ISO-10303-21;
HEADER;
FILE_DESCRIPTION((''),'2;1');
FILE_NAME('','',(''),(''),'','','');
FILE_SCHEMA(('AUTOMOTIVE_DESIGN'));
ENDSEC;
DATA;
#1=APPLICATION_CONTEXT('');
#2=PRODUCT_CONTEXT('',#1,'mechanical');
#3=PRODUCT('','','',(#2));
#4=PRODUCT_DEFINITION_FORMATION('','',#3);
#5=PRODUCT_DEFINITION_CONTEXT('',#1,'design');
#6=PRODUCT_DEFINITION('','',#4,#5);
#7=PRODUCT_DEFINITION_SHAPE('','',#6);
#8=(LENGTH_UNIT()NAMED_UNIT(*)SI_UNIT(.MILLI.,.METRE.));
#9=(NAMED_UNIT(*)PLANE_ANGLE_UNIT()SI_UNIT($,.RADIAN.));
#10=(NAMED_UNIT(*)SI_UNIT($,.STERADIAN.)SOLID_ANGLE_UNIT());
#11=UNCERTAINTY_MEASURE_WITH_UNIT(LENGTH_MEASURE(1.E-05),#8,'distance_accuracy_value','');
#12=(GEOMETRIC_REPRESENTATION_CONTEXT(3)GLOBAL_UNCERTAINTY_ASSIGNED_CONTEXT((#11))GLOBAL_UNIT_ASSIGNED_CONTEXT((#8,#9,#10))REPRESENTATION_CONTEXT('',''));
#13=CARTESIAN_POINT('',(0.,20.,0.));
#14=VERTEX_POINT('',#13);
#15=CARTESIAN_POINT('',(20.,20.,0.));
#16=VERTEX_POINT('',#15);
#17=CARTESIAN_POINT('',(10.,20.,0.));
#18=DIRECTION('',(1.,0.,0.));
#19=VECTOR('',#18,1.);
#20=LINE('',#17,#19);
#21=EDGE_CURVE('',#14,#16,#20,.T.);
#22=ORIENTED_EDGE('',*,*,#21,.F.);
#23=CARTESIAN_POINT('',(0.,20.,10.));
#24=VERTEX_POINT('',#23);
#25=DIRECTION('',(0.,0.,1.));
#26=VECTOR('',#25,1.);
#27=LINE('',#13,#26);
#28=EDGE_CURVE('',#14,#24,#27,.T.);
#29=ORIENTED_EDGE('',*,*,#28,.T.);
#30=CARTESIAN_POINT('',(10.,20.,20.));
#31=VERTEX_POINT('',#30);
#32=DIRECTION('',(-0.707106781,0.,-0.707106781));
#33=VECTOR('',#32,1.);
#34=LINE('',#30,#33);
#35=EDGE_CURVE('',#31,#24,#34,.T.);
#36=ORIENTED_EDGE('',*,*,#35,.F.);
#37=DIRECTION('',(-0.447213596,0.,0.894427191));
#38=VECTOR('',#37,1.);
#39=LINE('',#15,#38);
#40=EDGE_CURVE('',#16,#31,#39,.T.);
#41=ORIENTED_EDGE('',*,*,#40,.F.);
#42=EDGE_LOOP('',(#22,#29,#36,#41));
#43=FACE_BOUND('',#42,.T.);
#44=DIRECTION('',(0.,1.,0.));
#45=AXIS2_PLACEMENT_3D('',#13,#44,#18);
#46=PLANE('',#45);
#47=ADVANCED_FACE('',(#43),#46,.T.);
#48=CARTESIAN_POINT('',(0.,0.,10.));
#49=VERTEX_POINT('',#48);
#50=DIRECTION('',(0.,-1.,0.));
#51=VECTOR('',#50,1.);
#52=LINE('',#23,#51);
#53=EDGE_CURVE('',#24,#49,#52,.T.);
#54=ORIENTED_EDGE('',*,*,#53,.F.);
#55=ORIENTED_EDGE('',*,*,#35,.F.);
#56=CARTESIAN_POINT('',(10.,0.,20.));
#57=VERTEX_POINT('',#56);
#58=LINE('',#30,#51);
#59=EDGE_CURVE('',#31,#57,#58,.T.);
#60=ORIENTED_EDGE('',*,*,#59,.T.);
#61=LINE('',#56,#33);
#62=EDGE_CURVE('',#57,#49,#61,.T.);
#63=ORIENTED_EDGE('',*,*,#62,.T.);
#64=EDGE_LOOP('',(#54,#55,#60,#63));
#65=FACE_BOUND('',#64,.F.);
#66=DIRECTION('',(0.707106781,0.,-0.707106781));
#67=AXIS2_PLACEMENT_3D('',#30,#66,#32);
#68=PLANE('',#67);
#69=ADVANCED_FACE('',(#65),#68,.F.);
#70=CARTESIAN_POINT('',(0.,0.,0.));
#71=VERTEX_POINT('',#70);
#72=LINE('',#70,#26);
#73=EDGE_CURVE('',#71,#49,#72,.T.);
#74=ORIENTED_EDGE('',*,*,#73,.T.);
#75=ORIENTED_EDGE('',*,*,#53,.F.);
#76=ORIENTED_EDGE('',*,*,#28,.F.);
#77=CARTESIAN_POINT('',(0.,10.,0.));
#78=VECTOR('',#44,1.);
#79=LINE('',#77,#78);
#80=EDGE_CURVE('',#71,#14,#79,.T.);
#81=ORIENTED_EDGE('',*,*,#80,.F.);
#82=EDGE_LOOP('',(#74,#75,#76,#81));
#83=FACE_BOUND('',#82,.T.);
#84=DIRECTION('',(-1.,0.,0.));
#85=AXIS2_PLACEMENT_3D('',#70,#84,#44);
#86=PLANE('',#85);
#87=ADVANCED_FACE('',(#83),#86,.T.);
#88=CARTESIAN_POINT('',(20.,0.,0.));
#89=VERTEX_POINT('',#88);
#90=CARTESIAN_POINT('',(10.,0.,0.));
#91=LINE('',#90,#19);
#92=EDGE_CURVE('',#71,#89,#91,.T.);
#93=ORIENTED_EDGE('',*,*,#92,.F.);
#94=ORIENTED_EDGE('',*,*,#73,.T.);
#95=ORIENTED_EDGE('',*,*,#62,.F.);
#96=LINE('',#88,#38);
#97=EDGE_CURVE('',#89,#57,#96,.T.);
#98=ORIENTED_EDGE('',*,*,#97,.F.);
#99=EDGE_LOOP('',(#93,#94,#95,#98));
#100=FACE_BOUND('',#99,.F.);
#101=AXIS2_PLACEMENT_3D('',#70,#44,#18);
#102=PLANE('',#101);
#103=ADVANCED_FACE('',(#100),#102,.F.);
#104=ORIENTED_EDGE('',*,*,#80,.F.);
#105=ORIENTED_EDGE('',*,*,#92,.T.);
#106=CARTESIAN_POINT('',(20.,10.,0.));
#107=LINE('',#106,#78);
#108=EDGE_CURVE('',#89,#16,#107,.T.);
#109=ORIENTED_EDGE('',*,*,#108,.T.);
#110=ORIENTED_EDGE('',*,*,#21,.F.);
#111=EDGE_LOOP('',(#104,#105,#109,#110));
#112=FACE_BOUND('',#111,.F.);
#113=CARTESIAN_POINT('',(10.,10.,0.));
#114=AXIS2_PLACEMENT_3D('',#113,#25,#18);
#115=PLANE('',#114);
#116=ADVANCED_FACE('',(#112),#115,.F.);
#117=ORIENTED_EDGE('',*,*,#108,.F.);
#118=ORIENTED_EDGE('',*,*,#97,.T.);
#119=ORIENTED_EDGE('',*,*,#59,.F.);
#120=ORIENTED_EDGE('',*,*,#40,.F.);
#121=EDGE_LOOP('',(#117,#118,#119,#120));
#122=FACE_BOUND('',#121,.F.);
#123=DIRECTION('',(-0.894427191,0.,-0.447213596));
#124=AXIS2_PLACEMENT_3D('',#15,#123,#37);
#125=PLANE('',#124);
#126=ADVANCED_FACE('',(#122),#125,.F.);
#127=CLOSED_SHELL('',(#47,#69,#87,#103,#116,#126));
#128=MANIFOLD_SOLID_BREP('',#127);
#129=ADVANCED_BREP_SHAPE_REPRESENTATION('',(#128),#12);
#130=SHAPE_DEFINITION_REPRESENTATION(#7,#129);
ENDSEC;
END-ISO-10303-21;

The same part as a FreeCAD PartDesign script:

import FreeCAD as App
import Part
import Sketcher

V = App.Vector


def add_polygon(sketch, points):
    """Adds a closed chain of lines whose ends are joined by coincident constraints."""
    first, n = sketch.GeometryCount, len(points)
    for a, b in zip(points, points[1:] + points[:1]):
        sketch.addGeometry(Part.LineSegment(App.Vector(*a, 0), App.Vector(*b, 0)), False)
    for i in range(n):
        sketch.addConstraint(Sketcher.Constraint("Coincident", first + i, 2, first + (i + 1) % n, 1))

doc = App.newDocument("Part")
body = doc.addObject("PartDesign::Body", "Body")

# Sketch on XY plane
sketch1 = doc.addObject("Sketcher::SketchObject", "Sketch")
body.addObject(sketch1)
sketch1.AttachmentSupport = (doc.XY_Plane, [""])
sketch1.MapMode = "FlatFace"
add_polygon(sketch1, [(0, 20), (0, 0), (20, 0), (20, 20)])  # lines 0-3
sketch1.addConstraint(Sketcher.Constraint("Vertical", 0))
sketch1.addConstraint(Sketcher.Constraint("Horizontal", 1))
sketch1.addConstraint(Sketcher.Constraint("Vertical", 2))
sketch1.addConstraint(Sketcher.Constraint("Horizontal", 3))
sketch1.addConstraint(Sketcher.Constraint("Coincident", 0, 2, -1, 1))
sketch1.addConstraint(Sketcher.Constraint("Equal", 3, 0))
sketch1.addConstraint(Sketcher.Constraint("DistanceX", 1, 1, 1, 2, 20.0))
pad1 = doc.addObject("PartDesign::Pad", "Pad")
body.addObject(pad1)
pad1.Profile = sketch1
pad1.Length = 20

# Sketch on XZ plane
sketch2 = doc.addObject("Sketcher::SketchObject", "Sketch001")
body.addObject(sketch2)
sketch2.AttachmentSupport = (doc.XZ_Plane, [""])
sketch2.MapMode = "FlatFace"
sketch2.AttachmentOffset = App.Placement(V(0, 0, -20), App.Rotation())
add_polygon(sketch2, [(20, 0), (10, 20), (20, 20)])  # lines 0-2
sketch2.addConstraint(Sketcher.Constraint("Horizontal", 1))
sketch2.addConstraint(Sketcher.Constraint("Vertical", 2))
sketch2.addConstraint(Sketcher.Constraint("PointOnObject", 2, 2, -1))
sketch2.addConstraint(Sketcher.Constraint("DistanceX", 1, 1, 1, 2, 10.0))
sketch2.addConstraint(Sketcher.Constraint("DistanceY", 2, 2, 2, 1, 20.0))
sketch2.addConstraint(Sketcher.Constraint("DistanceX", -1, 1, 0, 2, 10.0))
pocket1 = doc.addObject("PartDesign::Pocket", "Pocket")
body.addObject(pocket1)
pocket1.Profile = sketch2
pocket1.Length = 20
pocket1.Reversed = True

# Sketch on XZ plane
sketch3 = doc.addObject("Sketcher::SketchObject", "Sketch002")
body.addObject(sketch3)
sketch3.AttachmentSupport = (doc.XZ_Plane, [""])
sketch3.MapMode = "FlatFace"
sketch3.AttachmentOffset = App.Placement(V(0, 0, -20), App.Rotation())
add_polygon(sketch3, [(0, 20), (10, 20), (0, 10)])  # lines 0-2
sketch3.addConstraint(Sketcher.Constraint("Horizontal", 0))
sketch3.addConstraint(Sketcher.Constraint("Vertical", 2))
sketch3.addConstraint(Sketcher.Constraint("PointOnObject", 1, 2, -2))
sketch3.addConstraint(Sketcher.Constraint("Equal", 0, 2))
sketch3.addConstraint(Sketcher.Constraint("DistanceX", 0, 1, 0, 2, 10.0))
sketch3.addConstraint(Sketcher.Constraint("DistanceY", -1, 1, 0, 2, 20.0))
pocket2 = doc.addObject("PartDesign::Pocket", "Pocket001")
body.addObject(pocket2)
pocket2.Profile = sketch3
pocket2.Length = 20
pocket2.Reversed = True

doc.recompute()
